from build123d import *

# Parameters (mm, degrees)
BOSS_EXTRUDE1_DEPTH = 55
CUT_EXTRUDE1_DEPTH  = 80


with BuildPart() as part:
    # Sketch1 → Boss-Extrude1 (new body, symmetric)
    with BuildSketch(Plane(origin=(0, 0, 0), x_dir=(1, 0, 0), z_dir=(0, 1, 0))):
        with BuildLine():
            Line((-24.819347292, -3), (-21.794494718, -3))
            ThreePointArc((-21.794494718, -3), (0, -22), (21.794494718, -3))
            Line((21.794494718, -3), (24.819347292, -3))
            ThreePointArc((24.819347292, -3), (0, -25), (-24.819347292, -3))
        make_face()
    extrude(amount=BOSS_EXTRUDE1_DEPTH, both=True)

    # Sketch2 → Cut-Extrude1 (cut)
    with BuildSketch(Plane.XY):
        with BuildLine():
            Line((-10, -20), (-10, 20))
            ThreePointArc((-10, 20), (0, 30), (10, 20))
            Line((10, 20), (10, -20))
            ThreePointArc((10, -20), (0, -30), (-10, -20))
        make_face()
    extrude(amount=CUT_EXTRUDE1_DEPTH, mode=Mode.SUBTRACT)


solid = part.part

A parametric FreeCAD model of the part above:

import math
import FreeCAD as App
import Part
import Sketcher
from FreeCAD import Vector

doc = App.newDocument("Part")
body = doc.addObject("PartDesign::Body", "Body")

# Sketch on XZ plane
sketch1 = body.newObject("Sketcher::SketchObject", "Sketch")
sketch1.AttachmentSupport = (doc.getObject("XZ_Plane"), [""])
sketch1.MapMode = "FlatFace"
sketch1.addGeometry([
    Part.LineSegment(Vector(-21.8, 3, 0), Vector(-24.8, 3, 0)),
    Part.ArcOfCircle(Part.Circle(Vector(0, 0, 0), Vector(0, 0, 1), 25), math.radians(7), math.radians(173)),
    Part.LineSegment(Vector(24.8, 3, 0), Vector(21.8, 3, 0)),
    Part.ArcOfCircle(Part.Circle(Vector(0, 0, 0), Vector(0, 0, 1), 22), math.radians(8), math.radians(172)),
], False)
sketch1.addConstraint([
    Sketcher.Constraint("Coincident", 0, 2, 1, 2),
    Sketcher.Constraint("Coincident", 1, 1, 2, 1),
    Sketcher.Constraint("Coincident", 2, 2, 3, 1),
    Sketcher.Constraint("Coincident", 3, 2, 0, 1),
    Sketcher.Constraint("Horizontal", 0),
    Sketcher.Constraint("Horizontal", 2),
    Sketcher.Constraint("Coincident", 1, 3, -1, 1),
    Sketcher.Constraint("Coincident", 3, 3, -1, 1),
    Sketcher.Constraint("Horizontal", 0, 2, 1, 1),
    Sketcher.Constraint("Radius", 1, 25.0),
    Sketcher.Constraint("Radius", 3, 22.0),
    Sketcher.Constraint("DistanceY", -1, 1, 0, 2, 3.0),
])
pad1 = body.newObject("PartDesign::Pad", "Pad")
pad1.Profile = sketch1
pad1.Length = 110
pad1.Midplane = True

# Sketch on XY plane
sketch2 = body.newObject("Sketcher::SketchObject", "Sketch001")
sketch2.AttachmentSupport = (doc.getObject("XY_Plane"), [""])
sketch2.MapMode = "FlatFace"
sketch2.addGeometry([
    Part.LineSegment(Vector(-10, 20, 0), Vector(-10, -20, 0)),
    Part.ArcOfCircle(Part.Circle(Vector(0, -20, 0), Vector(0, 0, 1), 10), math.radians(180), math.radians(360)),
    Part.LineSegment(Vector(10, -20, 0), Vector(10, 20, 0)),
    Part.ArcOfCircle(Part.Circle(Vector(0, 20, 0), Vector(0, 0, 1), 10), math.radians(0), math.radians(180)),
], False)
sketch2.addConstraint([
    Sketcher.Constraint("Tangent", 0, 2, 1, 1),
    Sketcher.Constraint("Tangent", 1, 2, 2, 1),
    Sketcher.Constraint("Tangent", 2, 2, 3, 1),
    Sketcher.Constraint("Tangent", 3, 2, 0, 1),
    Sketcher.Constraint("Vertical", 0),
    Sketcher.Constraint("Vertical", 2),
    Sketcher.Constraint("Symmetric", 1, 3, 3, 3, -1, 1),
    Sketcher.Constraint("Radius", 1, 10.0),
    Sketcher.Constraint("DistanceY", 0, 2, 0, 1, 40.0),
])
pocket1 = body.newObject("PartDesign::Pocket", "Pocket")
pocket1.Profile = sketch2
pocket1.Length = 80
pocket1.Reversed = True

doc.recompute()
